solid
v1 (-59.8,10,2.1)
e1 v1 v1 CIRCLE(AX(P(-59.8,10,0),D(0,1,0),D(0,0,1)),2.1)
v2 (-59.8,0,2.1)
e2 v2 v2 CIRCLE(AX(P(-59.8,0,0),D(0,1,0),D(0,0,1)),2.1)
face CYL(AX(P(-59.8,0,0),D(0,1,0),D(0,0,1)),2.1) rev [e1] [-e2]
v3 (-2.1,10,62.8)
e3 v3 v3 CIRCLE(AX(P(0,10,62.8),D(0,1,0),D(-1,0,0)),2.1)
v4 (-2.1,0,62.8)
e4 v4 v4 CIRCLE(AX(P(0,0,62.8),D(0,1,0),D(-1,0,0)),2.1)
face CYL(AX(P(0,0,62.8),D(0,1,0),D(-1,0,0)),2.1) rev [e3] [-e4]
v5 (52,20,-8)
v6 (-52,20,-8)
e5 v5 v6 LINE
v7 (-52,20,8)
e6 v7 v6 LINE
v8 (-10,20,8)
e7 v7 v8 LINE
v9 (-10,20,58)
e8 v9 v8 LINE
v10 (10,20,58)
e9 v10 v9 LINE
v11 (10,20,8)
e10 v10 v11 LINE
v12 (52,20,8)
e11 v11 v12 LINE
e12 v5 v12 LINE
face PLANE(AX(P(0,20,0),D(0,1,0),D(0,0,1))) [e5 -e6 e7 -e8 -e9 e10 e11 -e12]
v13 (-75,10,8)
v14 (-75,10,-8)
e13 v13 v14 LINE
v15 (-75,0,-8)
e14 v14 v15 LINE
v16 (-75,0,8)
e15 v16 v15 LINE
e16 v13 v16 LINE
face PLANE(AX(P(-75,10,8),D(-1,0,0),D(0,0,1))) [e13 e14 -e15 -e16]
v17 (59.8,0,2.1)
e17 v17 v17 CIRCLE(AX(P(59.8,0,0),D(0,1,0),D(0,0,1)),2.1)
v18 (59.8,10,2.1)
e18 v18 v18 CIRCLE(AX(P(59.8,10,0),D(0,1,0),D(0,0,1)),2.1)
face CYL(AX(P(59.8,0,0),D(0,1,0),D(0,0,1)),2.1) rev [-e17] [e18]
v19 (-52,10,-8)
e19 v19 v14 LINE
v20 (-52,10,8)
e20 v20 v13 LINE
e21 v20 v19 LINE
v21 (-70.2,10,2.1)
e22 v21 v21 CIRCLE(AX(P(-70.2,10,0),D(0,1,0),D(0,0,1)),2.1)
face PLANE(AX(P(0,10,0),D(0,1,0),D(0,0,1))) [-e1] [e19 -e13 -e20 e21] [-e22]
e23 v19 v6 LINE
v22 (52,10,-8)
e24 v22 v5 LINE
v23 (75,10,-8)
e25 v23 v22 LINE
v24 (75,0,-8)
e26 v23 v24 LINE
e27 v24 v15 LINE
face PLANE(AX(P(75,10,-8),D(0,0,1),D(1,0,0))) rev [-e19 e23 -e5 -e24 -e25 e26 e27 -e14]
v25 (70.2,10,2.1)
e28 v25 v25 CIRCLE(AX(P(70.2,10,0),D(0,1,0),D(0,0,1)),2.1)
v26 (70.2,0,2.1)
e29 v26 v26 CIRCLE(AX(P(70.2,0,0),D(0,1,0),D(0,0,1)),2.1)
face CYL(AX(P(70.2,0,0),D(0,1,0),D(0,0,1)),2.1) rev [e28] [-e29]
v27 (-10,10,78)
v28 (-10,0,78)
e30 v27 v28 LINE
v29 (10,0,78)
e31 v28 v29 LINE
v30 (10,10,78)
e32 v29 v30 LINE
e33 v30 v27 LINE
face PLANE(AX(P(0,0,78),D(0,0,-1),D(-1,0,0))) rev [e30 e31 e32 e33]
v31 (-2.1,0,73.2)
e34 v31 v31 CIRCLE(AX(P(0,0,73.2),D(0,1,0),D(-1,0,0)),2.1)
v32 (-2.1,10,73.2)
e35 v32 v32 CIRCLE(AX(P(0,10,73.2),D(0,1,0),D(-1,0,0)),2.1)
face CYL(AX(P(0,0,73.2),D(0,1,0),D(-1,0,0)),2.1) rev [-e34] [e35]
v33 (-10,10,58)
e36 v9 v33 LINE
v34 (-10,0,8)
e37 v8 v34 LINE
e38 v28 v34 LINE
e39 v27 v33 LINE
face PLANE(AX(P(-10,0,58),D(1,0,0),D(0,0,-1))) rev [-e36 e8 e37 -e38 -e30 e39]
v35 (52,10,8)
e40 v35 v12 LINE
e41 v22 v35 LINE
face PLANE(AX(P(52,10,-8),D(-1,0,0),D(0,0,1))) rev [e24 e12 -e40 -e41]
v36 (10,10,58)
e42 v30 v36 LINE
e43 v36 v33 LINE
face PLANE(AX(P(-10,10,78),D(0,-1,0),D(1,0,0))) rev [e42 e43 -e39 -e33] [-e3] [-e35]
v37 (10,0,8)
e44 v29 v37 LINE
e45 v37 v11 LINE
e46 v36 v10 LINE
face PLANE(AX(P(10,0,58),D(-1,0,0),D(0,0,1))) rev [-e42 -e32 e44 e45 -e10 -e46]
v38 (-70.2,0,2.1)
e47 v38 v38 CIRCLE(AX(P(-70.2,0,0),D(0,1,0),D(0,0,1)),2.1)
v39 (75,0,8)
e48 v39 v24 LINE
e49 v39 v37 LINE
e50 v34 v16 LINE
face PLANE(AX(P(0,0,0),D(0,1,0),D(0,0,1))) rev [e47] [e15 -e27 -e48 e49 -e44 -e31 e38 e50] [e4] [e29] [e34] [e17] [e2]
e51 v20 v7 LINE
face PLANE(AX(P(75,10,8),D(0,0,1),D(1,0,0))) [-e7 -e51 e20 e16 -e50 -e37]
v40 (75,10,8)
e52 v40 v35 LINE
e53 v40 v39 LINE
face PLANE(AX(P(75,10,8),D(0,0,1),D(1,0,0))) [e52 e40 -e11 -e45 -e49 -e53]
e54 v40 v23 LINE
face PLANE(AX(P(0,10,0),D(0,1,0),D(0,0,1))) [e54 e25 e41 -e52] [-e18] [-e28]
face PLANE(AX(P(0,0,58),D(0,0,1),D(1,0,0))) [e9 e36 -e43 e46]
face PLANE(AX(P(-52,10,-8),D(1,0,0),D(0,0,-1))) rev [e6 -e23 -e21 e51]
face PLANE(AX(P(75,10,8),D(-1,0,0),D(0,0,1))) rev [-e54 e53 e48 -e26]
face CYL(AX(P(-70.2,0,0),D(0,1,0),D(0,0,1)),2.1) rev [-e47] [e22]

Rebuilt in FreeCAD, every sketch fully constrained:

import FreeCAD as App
import Part
import Sketcher

V = App.Vector

doc = App.newDocument("Part")
body = doc.addObject("PartDesign::Body", "Body")

# Sketch on XZ plane
sketch1 = body.newObject("Sketcher::SketchObject", "Sketch")
sketch1.AttachmentSupport = (doc.getObject("XZ_Plane"), [""])
sketch1.MapMode = "FlatFace"
sketch1.addGeometry(Part.LineSegment(V(-75, -8, 0), V(-75, 8, 0)), False)
sketch1.addGeometry(Part.LineSegment(V(-75, 8, 0), V(75, 8, 0)), False)
sketch1.addGeometry(Part.LineSegment(V(75, 8, 0), V(75, -8, 0)), False)
sketch1.addGeometry(Part.LineSegment(V(75, -8, 0), V(-75, -8, 0)), False)
sketch1.addConstraint(Sketcher.Constraint("Coincident", 0, 2, 1, 1))
sketch1.addConstraint(Sketcher.Constraint("Coincident", 1, 2, 2, 1))
sketch1.addConstraint(Sketcher.Constraint("Coincident", 2, 2, 3, 1))
sketch1.addConstraint(Sketcher.Constraint("Coincident", 3, 2, 0, 1))
sketch1.addConstraint(Sketcher.Constraint("Vertical", 0))
sketch1.addConstraint(Sketcher.Constraint("Horizontal", 1))
sketch1.addConstraint(Sketcher.Constraint("Vertical", 2))
sketch1.addConstraint(Sketcher.Constraint("Horizontal", 3))
sketch1.addConstraint(Sketcher.Constraint("Symmetric", 0, 2, 2, 2, -1, 1))
sketch1.addConstraint(Sketcher.Constraint("DistanceX", 1, 1, 1, 2, 150.0))
sketch1.addConstraint(Sketcher.Constraint("DistanceY", 0, 1, 0, 2, 16.0))
pad1 = body.newObject("PartDesign::Pad", "Pad")
pad1.Profile = sketch1
pad1.Length = 10
pad1.Reversed = True

# Sketch on XZ plane
sketch2 = body.newObject("Sketcher::SketchObject", "Sketch001")
sketch2.AttachmentSupport = (doc.getObject("XZ_Plane"), [""])
sketch2.MapMode = "FlatFace"
sketch2.AttachmentOffset = App.Placement(V(0, 0, -10), App.Rotation())
sketch2.addGeometry(Part.LineSegment(V(-55, -8, 0), V(-55, 8, 0)), False)
sketch2.addGeometry(Part.LineSegment(V(-55, 8, 0), V(55, 8, 0)), False)
sketch2.addGeometry(Part.LineSegment(V(55, 8, 0), V(55, -8, 0)), False)
sketch2.addGeometry(Part.LineSegment(V(55, -8, 0), V(-55, -8, 0)), False)
sketch2.addConstraint(Sketcher.Constraint("Coincident", 0, 2, 1, 1))
sketch2.addConstraint(Sketcher.Constraint("Coincident", 1, 2, 2, 1))
sketch2.addConstraint(Sketcher.Constraint("Coincident", 2, 2, 3, 1))
sketch2.addConstraint(Sketcher.Constraint("Coincident", 3, 2, 0, 1))
sketch2.addConstraint(Sketcher.Constraint("Vertical", 0))
sketch2.addConstraint(Sketcher.Constraint("Horizontal", 1))
sketch2.addConstraint(Sketcher.Constraint("Vertical", 2))
sketch2.addConstraint(Sketcher.Constraint("Horizontal", 3))
sketch2.addConstraint(Sketcher.Constraint("Symmetric", 0, 2, 2, 2, -1, 1))
sketch2.addConstraint(Sketcher.Constraint("DistanceX", 1, 1, 1, 2, 110.0))
sketch2.addConstraint(Sketcher.Constraint("DistanceY", 0, 1, 0, 2, 16.0))
pad2 = body.newObject("PartDesign::Pad", "Pad001")
pad2.Profile = sketch2
pad2.Length = 10
pad2.Reversed = True

# Sketch on XZ plane
sketch3 = body.newObject("Sketcher::SketchObject", "Sketch002")
sketch3.AttachmentSupport = (doc.getObject("XZ_Plane"), [""])
sketch3.MapMode = "FlatFace"
sketch3.AttachmentOffset = App.Placement(V(0, 0, -10), App.Rotation())
sketch3.addGeometry(Part.Circle(V(-70.2, 0, 0), V(0, 0, 1), 2.1), False)
sketch3.addGeometry(Part.Circle(V(-59.8, 0, 0), V(0, 0, 1), 2.1), False)
sketch3.addConstraint(Sketcher.Constraint("Equal", 0, 1))
sketch3.addConstraint(Sketcher.Constraint("PointOnObject", 0, 3, -1))
sketch3.addConstraint(Sketcher.Constraint("PointOnObject", 1, 3, -1))
sketch3.addConstraint(Sketcher.Constraint("Diameter", 0, 4.2))
sketch3.addConstraint(Sketcher.Constraint("DistanceX", 0, 3, -1, 1, 70.2))
sketch3.addConstraint(Sketcher.Constraint("DistanceX", 1, 3, -1, 1, 59.8))
pocket1 = body.newObject("PartDesign::Pocket", "Pocket")
pocket1.Profile = sketch3
pocket1.Length = 10
pocket1.Reversed = True

# Sketch on XZ plane
sketch4 = body.newObject("Sketcher::SketchObject", "Sketch003")
sketch4.AttachmentSupport = (doc.getObject("XZ_Plane"), [""])
sketch4.MapMode = "FlatFace"
sketch4.AttachmentOffset = App.Placement(V(0, 0, -10), App.Rotation())
sketch4.addGeometry(Part.Circle(V(59.8, 0, 0), V(0, 0, 1), 2.1), False)
sketch4.addGeometry(Part.Circle(V(70.2, 0, 0), V(0, 0, 1), 2.1), False)
sketch4.addConstraint(Sketcher.Constraint("Equal", 0, 1))
sketch4.addConstraint(Sketcher.Constraint("PointOnObject", 0, 3, -1))
sketch4.addConstraint(Sketcher.Constraint("PointOnObject", 1, 3, -1))
sketch4.addConstraint(Sketcher.Constraint("Diameter", 0, 4.2))
sketch4.addConstraint(Sketcher.Constraint("DistanceX", -1, 1, 0, 3, 59.8))
sketch4.addConstraint(Sketcher.Constraint("DistanceX", -1, 1, 1, 3, 70.2))
pocket2 = body.newObject("PartDesign::Pocket", "Pocket001")
pocket2.Profile = sketch4
pocket2.Length = 10
pocket2.Reversed = True

# Sketch on XY plane
sketch5 = body.newObject("Sketcher::SketchObject", "Sketch004")
sketch5.AttachmentSupport = (doc.getObject("XY_Plane"), [""])
sketch5.MapMode = "FlatFace"
sketch5.AttachmentOffset = App.Placement(V(0, 0, 8), App.Rotation())
sketch5.addGeometry(Part.LineSegment(V(-10, 20, 0), V(-10, 0, 0)), False)
sketch5.addGeometry(Part.LineSegment(V(-10, 0, 0), V(10, 0, 0)), False)
sketch5.addGeometry(Part.LineSegment(V(10, 0, 0), V(10, 20, 0)), False)
sketch5.addGeometry(Part.LineSegment(V(10, 20, 0), V(-10, 20, 0)), False)
sketch5.addConstraint(Sketcher.Constraint("Coincident", 0, 2, 1, 1))
sketch5.addConstraint(Sketcher.Constraint("Coincident", 1, 2, 2, 1))
sketch5.addConstraint(Sketcher.Constraint("Coincident", 2, 2, 3, 1))
sketch5.addConstraint(Sketcher.Constraint("Coincident", 3, 2, 0, 1))
sketch5.addConstraint(Sketcher.Constraint("Vertical", 0))
sketch5.addConstraint(Sketcher.Constraint("Horizontal", 1))
sketch5.addConstraint(Sketcher.Constraint("Vertical", 2))
sketch5.addConstraint(Sketcher.Constraint("Horizontal", 3))
sketch5.addConstraint(Sketcher.Constraint("Symmetric", 0, 2, 1, 2, -1, 1))
sketch5.addConstraint(Sketcher.Constraint("Equal", 3, 0))
sketch5.addConstraint(Sketcher.Constraint("DistanceX", 1, 1, 1, 2, 20.0))
pad3 = body.newObject("PartDesign::Pad", "Pad002")
pad3.Profile = sketch5
pad3.Length = 50

# Sketch on XY plane
sketch6 = body.newObject("Sketcher::SketchObject", "Sketch005")
sketch6.AttachmentSupport = (doc.getObject("XY_Plane"), [""])
sketch6.MapMode = "FlatFace"
sketch6.AttachmentOffset = App.Placement(V(0, 0, 58), App.Rotation())
sketch6.addGeometry(Part.LineSegment(V(-10, 10, 0), V(-10, 0, 0)), False)
sketch6.addGeometry(Part.LineSegment(V(-10, 0, 0), V(10, 0, 0)), False)
sketch6.addGeometry(Part.LineSegment(V(10, 0, 0), V(10, 10, 0)), False)
sketch6.addGeometry(Part.LineSegment(V(10, 10, 0), V(-10, 10, 0)), False)
sketch6.addConstraint(Sketcher.Constraint("Coincident", 0, 2, 1, 1))
sketch6.addConstraint(Sketcher.Constraint("Coincident", 1, 2, 2, 1))
sketch6.addConstraint(Sketcher.Constraint("Coincident", 2, 2, 3, 1))
sketch6.addConstraint(Sketcher.Constraint("Coincident", 3, 2, 0, 1))
sketch6.addConstraint(Sketcher.Constraint("Vertical", 0))
sketch6.addConstraint(Sketcher.Constraint("Horizontal", 1))
sketch6.addConstraint(Sketcher.Constraint("Vertical", 2))
sketch6.addConstraint(Sketcher.Constraint("Horizontal", 3))
sketch6.addConstraint(Sketcher.Constraint("Symmetric", 0, 2, 1, 2, -1, 1))
sketch6.addConstraint(Sketcher.Constraint("DistanceX", 1, 1, 1, 2, 20.0))
sketch6.addConstraint(Sketcher.Constraint("DistanceY", 0, 2, 0, 1, 10.0))
pad4 = body.newObject("PartDesign::Pad", "Pad003")
pad4.Profile = sketch6
pad4.Length = 20

# Sketch on XZ plane
sketch7 = body.newObject("Sketcher::SketchObject", "Sketch006")
sketch7.AttachmentSupport = (doc.getObject("XZ_Plane"), [""])
sketch7.MapMode = "FlatFace"
sketch7.AttachmentOffset = App.Placement(V(0, 0, -10), App.Rotation())
sketch7.addGeometry(Part.Circle(V(0, 62.8, 0), V(0, 0, 1), 2.1), False)
sketch7.addGeometry(Part.Circle(V(0, 73.2, 0), V(0, 0, 1), 2.1), False)
sketch7.addConstraint(Sketcher.Constraint("Equal", 0, 1))
sketch7.addConstraint(Sketcher.Constraint("PointOnObject", 0, 3, -2))
sketch7.addConstraint(Sketcher.Constraint("PointOnObject", 1, 3, -2))
sketch7.addConstraint(Sketcher.Constraint("Diameter", 0, 4.2))
sketch7.addConstraint(Sketcher.Constraint("DistanceY", -1, 1, 0, 3, 62.8))
sketch7.addConstraint(Sketcher.Constraint("DistanceY", -1, 1, 1, 3, 73.2))
pocket3 = body.newObject("PartDesign::Pocket", "Pocket002")
pocket3.Profile = sketch7
pocket3.Length = 10
pocket3.Reversed = True

# Sketch on XZ plane
sketch8 = body.newObject("Sketcher::SketchObject", "Sketch007")
sketch8.AttachmentSupport = (doc.getObject("XZ_Plane"), [""])
sketch8.MapMode = "FlatFace"
sketch8.AttachmentOffset = App.Placement(V(0, 0, -20), App.Rotation())
sketch8.addGeometry(Part.LineSegment(V(-55, -8, 0), V(-55, 8, 0)), False)
sketch8.addGeometry(Part.LineSegment(V(-55, 8, 0), V(-52, 8, 0)), False)
sketch8.addGeometry(Part.LineSegment(V(-52, 8, 0), V(-52, -8, 0)), False)
sketch8.addGeometry(Part.LineSegment(V(-52, -8, 0), V(-55, -8, 0)), False)
sketch8.addGeometry(Part.LineSegment(V(52, -8, 0), V(52, 8, 0)), False)
sketch8.addGeometry(Part.LineSegment(V(52, 8, 0), V(55, 8, 0)), False)
sketch8.addGeometry(Part.LineSegment(V(55, 8, 0), V(55, -8, 0)), False)
sketch8.addGeometry(Part.LineSegment(V(55, -8, 0), V(52, -8, 0)), False)
sketch8.addConstraint(Sketcher.Constraint("Coincident", 0, 2, 1, 1))
sketch8.addConstraint(Sketcher.Constraint("Coincident", 1, 2, 2, 1))
sketch8.addConstraint(Sketcher.Constraint("Coincident", 2, 2, 3, 1))
sketch8.addConstraint(Sketcher.Constraint("Coincident", 3, 2, 0, 1))
sketch8.addConstraint(Sketcher.Constraint("Coincident", 4, 2, 5, 1))
sketch8.addConstraint(Sketcher.Constraint("Coincident", 5, 2, 6, 1))
sketch8.addConstraint(Sketcher.Constraint("Coincident", 6, 2, 7, 1))
sketch8.addConstraint(Sketcher.Constraint("Coincident", 7, 2, 4, 1))
sketch8.addConstraint(Sketcher.Constraint("Vertical", 0))
sketch8.addConstraint(Sketcher.Constraint("Horizontal", 1))
sketch8.addConstraint(Sketcher.Constraint("Vertical", 2))
sketch8.addConstraint(Sketcher.Constraint("Horizontal", 3))
sketch8.addConstraint(Sketcher.Constraint("Vertical", 4))
sketch8.addConstraint(Sketcher.Constraint("Horizontal", 5))
sketch8.addConstraint(Sketcher.Constraint("Vertical", 6))
sketch8.addConstraint(Sketcher.Constraint("Horizontal", 7))
sketch8.addConstraint(Sketcher.Constraint("Symmetric", 2, 2, 4, 2, -1, 1))
sketch8.addConstraint(Sketcher.Constraint("Symmetric", 0, 2, 6, 2, -1, 1))
sketch8.addConstraint(Sketcher.Constraint("Horizontal", 1, 2, 4, 2))
sketch8.addConstraint(Sketcher.Constraint("DistanceX", 1, 1, 1, 2, 3.0))
sketch8.addConstraint(Sketcher.Constraint("DistanceY", 0, 1, 0, 2, 16.0))
sketch8.addConstraint(Sketcher.Constraint("DistanceX", 0, 2, -1, 1, 55.0))
pocket4 = body.newObject("PartDesign::Pocket", "Pocket003")
pocket4.Profile = sketch8
pocket4.Length = 10
pocket4.Reversed = True

doc.recompute()
